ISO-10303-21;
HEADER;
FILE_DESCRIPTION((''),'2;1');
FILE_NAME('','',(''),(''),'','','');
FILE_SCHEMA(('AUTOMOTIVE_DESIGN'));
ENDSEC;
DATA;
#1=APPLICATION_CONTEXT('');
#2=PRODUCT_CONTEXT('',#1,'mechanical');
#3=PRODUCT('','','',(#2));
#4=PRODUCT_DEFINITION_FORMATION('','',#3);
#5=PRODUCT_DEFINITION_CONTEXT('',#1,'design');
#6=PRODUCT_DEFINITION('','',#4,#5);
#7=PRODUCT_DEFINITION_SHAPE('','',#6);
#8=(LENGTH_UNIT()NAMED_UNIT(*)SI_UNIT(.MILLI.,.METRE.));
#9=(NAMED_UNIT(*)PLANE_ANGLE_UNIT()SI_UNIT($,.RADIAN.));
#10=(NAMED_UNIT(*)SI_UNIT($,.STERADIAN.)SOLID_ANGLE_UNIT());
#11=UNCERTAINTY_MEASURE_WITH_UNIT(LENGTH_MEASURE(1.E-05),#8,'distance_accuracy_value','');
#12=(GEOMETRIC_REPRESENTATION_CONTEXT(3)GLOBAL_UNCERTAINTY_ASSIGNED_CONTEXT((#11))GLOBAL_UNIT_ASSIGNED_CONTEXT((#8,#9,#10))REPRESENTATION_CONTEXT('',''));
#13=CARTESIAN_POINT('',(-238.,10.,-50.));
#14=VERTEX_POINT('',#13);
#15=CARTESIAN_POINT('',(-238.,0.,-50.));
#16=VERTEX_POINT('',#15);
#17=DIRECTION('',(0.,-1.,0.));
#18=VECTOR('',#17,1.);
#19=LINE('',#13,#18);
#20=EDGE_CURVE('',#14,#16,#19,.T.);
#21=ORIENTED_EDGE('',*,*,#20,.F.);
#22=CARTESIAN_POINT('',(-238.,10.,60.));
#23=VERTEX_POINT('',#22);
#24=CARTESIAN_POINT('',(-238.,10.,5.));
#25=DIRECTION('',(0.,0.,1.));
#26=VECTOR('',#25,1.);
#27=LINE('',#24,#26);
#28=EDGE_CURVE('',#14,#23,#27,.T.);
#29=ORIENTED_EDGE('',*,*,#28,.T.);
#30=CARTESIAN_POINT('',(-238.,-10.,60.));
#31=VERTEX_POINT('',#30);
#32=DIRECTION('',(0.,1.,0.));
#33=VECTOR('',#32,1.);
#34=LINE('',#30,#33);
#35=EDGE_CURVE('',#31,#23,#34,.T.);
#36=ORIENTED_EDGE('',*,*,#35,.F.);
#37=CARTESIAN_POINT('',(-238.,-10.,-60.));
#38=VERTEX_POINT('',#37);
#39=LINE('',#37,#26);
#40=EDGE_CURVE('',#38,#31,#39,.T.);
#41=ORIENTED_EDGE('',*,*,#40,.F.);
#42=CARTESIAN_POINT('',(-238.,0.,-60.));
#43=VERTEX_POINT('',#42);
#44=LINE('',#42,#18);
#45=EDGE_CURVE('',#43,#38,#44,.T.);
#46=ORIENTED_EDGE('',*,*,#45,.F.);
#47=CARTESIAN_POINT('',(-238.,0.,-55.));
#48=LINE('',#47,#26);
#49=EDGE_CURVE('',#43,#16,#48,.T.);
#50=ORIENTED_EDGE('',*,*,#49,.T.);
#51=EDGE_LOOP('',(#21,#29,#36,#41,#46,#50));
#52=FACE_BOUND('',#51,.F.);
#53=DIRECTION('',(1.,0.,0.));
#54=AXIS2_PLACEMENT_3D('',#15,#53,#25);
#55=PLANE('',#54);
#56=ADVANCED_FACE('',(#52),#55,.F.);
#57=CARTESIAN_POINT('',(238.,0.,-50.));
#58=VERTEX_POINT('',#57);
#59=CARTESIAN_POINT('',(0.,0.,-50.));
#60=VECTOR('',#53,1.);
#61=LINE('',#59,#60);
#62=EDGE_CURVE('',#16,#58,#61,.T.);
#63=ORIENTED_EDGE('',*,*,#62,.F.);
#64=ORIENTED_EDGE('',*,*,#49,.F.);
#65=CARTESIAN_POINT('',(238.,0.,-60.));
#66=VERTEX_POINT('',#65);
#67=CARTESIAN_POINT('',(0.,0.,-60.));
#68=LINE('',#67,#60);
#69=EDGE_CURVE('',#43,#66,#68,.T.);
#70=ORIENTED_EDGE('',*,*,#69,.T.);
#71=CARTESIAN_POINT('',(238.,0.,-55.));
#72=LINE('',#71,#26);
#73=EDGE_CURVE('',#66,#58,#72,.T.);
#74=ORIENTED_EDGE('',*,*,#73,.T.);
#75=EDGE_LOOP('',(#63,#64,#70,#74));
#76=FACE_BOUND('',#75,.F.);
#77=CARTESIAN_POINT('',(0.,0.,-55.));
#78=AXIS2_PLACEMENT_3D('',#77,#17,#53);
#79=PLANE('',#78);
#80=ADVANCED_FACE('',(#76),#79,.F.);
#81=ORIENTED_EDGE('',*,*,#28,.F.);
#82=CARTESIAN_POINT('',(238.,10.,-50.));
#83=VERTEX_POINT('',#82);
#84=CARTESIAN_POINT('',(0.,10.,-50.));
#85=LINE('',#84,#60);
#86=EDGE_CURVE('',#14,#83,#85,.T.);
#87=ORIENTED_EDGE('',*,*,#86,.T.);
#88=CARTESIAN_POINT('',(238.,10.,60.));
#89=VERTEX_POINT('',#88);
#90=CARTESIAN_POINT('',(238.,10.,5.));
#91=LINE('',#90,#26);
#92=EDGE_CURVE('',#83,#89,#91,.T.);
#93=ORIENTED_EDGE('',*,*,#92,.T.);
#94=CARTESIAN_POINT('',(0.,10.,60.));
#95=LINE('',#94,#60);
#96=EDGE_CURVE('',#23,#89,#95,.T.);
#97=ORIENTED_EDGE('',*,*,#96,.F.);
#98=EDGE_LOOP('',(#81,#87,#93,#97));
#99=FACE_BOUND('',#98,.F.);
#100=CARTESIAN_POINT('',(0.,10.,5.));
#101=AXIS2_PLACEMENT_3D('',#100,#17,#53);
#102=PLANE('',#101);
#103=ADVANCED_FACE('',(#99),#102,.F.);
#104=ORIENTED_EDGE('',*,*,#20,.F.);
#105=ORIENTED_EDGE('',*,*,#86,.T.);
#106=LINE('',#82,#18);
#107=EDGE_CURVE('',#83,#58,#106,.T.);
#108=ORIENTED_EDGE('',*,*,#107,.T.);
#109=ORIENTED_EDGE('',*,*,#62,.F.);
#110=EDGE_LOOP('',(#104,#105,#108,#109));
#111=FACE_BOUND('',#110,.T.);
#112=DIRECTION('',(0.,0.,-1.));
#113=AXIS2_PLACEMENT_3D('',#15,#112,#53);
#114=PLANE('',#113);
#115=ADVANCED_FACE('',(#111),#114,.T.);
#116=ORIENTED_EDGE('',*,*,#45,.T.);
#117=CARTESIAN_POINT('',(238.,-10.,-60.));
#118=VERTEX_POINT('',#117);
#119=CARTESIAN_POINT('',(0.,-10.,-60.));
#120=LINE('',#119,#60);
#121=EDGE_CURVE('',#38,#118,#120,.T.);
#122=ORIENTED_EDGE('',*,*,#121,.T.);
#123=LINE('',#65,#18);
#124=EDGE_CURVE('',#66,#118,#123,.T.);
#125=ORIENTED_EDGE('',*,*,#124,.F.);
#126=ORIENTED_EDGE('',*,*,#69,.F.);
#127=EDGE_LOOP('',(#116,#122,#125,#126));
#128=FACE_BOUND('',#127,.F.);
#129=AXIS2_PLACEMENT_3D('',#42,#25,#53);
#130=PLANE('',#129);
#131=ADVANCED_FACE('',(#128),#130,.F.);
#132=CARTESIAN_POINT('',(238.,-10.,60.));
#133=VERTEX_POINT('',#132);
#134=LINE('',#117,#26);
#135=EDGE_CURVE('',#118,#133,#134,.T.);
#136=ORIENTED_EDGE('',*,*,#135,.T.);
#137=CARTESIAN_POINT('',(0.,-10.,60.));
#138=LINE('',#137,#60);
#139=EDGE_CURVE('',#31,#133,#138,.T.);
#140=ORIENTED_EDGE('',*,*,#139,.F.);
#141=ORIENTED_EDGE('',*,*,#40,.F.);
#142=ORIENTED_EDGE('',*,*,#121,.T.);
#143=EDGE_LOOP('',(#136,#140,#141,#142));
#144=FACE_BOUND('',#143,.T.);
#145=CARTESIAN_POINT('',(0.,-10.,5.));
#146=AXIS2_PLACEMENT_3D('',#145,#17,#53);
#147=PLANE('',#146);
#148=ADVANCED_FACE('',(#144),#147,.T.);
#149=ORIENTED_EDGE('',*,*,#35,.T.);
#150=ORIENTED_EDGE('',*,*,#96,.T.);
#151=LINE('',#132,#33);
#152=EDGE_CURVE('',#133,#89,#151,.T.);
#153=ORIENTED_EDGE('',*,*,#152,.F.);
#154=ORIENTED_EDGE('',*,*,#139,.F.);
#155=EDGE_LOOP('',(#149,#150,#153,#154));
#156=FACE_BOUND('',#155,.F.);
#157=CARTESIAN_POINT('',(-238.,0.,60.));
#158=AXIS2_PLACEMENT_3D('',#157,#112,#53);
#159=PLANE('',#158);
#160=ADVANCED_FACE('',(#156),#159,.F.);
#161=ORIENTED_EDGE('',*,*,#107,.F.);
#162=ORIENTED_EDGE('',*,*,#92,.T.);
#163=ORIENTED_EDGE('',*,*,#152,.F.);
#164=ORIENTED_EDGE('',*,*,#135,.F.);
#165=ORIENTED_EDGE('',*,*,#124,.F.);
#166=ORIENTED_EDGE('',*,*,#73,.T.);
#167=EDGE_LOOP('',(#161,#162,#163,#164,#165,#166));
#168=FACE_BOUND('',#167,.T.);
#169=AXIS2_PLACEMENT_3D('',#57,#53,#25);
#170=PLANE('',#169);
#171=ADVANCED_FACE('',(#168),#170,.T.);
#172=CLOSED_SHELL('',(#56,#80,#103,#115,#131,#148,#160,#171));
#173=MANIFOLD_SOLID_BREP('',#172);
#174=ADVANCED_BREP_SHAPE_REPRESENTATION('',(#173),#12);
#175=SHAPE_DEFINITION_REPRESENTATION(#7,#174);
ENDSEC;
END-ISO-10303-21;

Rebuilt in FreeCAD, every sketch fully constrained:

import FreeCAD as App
import Part
import Sketcher

V = App.Vector

doc = App.newDocument("Part")
body = doc.addObject("PartDesign::Body", "Body")

sketch1 = doc.addObject("Sketcher::SketchObject", "Sketch")
body.addObject(sketch1)
sketch1.AttachmentSupport = (doc.XZ_Plane, [""])
sketch1.MapMode = "FlatFace"
sketch1.addGeometry(Part.LineSegment(V(-238, -50, 0), V(-238, -60, 0)), False)
sketch1.addGeometry(Part.LineSegment(V(-238, -60, 0), V(238, -60, 0)), False)
sketch1.addGeometry(Part.LineSegment(V(238, -60, 0), V(238, -50, 0)), False)
sketch1.addGeometry(Part.LineSegment(V(238, -50, 0), V(-238, -50, 0)), False)
sketch1.addConstraint(Sketcher.Constraint("Coincident", 0, 2, 1, 1))
sketch1.addConstraint(Sketcher.Constraint("Coincident", 1, 2, 2, 1))
sketch1.addConstraint(Sketcher.Constraint("Coincident", 2, 2, 3, 1))
sketch1.addConstraint(Sketcher.Constraint("Coincident", 3, 2, 0, 1))
sketch1.addConstraint(Sketcher.Constraint("Vertical", 0))
sketch1.addConstraint(Sketcher.Constraint("Horizontal", 1))
sketch1.addConstraint(Sketcher.Constraint("Vertical", 2))
sketch1.addConstraint(Sketcher.Constraint("Horizontal", 3))
sketch1.addConstraint(Sketcher.Constraint("DistanceX", 1, 1, 1, 2, 476.0))
sketch1.addConstraint(Sketcher.Constraint("DistanceY", 0, 2, 0, 1, 10.0))
sketch1.addConstraint(Sketcher.Constraint("DistanceX", 0, 2, -1, 1, 238.0))
sketch1.addConstraint(Sketcher.Constraint("DistanceY", 0, 2, -1, 1, 60.0))
pad1 = doc.addObject("PartDesign::Pad", "Pad")
body.addObject(pad1)
pad1.Profile = sketch1
pad1.Length = 10

sketch2 = doc.addObject("Sketcher::SketchObject", "Sketch001")
body.addObject(sketch2)
sketch2.AttachmentSupport = (doc.XZ_Plane, [""])
sketch2.MapMode = "FlatFace"
sketch2.addGeometry(Part.LineSegment(V(-238, 60, 0), V(-238, -50, 0)), False)
sketch2.addGeometry(Part.LineSegment(V(-238, -50, 0), V(238, -50, 0)), False)
sketch2.addGeometry(Part.LineSegment(V(238, -50, 0), V(238, 60, 0)), False)
sketch2.addGeometry(Part.LineSegment(V(238, 60, 0), V(-238, 60, 0)), False)
sketch2.addConstraint(Sketcher.Constraint("Coincident", 0, 2, 1, 1))
sketch2.addConstraint(Sketcher.Constraint("Coincident", 1, 2, 2, 1))
sketch2.addConstraint(Sketcher.Constraint("Coincident", 2, 2, 3, 1))
sketch2.addConstraint(Sketcher.Constraint("Coincident", 3, 2, 0, 1))
sketch2.addConstraint(Sketcher.Constraint("Vertical", 0))
sketch2.addConstraint(Sketcher.Constraint("Horizontal", 1))
sketch2.addConstraint(Sketcher.Constraint("Vertical", 2))
sketch2.addConstraint(Sketcher.Constraint("Horizontal", 3))
sketch2.addConstraint(Sketcher.Constraint("DistanceX", 1, 1, 1, 2, 476.0))
sketch2.addConstraint(Sketcher.Constraint("DistanceY", 0, 2, 0, 1, 110.0))
sketch2.addConstraint(Sketcher.Constraint("DistanceX", 0, 2, -1, 1, 238.0))
sketch2.addConstraint(Sketcher.Constraint("DistanceY", 0, 2, -1, 1, 50.0))
pad2 = doc.addObject("PartDesign::Pad", "Pad001")
body.addObject(pad2)
pad2.Profile = sketch2
pad2.Length = 20
pad2.Midplane = True

doc.recompute()
